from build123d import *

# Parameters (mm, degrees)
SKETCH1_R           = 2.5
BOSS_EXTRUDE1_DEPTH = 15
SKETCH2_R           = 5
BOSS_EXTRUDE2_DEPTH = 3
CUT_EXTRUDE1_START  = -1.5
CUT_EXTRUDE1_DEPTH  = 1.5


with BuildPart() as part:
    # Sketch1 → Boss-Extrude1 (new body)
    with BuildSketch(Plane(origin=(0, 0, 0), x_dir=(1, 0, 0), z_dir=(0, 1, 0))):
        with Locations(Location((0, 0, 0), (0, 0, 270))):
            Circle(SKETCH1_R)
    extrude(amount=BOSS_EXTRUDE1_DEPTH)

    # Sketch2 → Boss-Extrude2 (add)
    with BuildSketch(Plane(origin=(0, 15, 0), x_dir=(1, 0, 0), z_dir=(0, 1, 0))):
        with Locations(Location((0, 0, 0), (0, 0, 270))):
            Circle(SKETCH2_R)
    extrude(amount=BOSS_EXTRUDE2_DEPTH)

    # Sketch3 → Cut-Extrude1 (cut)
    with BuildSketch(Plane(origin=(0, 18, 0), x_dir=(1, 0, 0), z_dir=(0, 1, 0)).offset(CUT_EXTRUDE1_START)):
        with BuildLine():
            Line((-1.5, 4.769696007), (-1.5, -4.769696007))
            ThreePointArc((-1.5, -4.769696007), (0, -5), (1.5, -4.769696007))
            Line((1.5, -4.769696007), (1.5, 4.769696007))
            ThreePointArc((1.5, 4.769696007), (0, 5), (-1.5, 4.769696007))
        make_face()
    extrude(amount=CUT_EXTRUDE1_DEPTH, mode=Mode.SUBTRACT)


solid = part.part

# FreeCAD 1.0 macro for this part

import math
import FreeCAD as App
import Part
import Sketcher

V = App.Vector

doc = App.newDocument("Part")
body = doc.addObject("PartDesign::Body", "Body")

sketch1 = body.newObject("Sketcher::SketchObject", "Sketch")
sketch1.AttachmentSupport = (doc.getObject("XZ_Plane"), [""])
sketch1.MapMode = "FlatFace"
sketch1.addGeometry(Part.Circle(V(0, 0, 0), V(0, 0, 1), 2.5), False)
sketch1.addConstraint([
    Sketcher.Constraint("Coincident", 0, 3, -1, 1),
    Sketcher.Constraint("Diameter", 0, 5.0),
])
pad1 = body.newObject("PartDesign::Pad", "Pad")
pad1.Profile = sketch1
pad1.Length = 15
pad1.Reversed = True

sketch2 = body.newObject("Sketcher::SketchObject", "Sketch001")
sketch2.AttachmentSupport = (doc.getObject("XZ_Plane"), [""])
sketch2.MapMode = "FlatFace"
sketch2.AttachmentOffset = App.Placement(V(0, 0, -15), App.Rotation())
sketch2.addGeometry(Part.Circle(V(0, 0, 0), V(0, 0, 1), 5), False)
sketch2.addConstraint([
    Sketcher.Constraint("Coincident", 0, 3, -1, 1),
    Sketcher.Constraint("Diameter", 0, 10.0),
])
pad2 = body.newObject("PartDesign::Pad", "Pad001")
pad2.Profile = sketch2
pad2.Length = 3
pad2.Reversed = True

sketch3 = body.newObject("Sketcher::SketchObject", "Sketch002")
sketch3.AttachmentSupport = (doc.getObject("XZ_Plane"), [""])
sketch3.MapMode = "FlatFace"
sketch3.AttachmentOffset = App.Placement(V(0, 0, -16.5), App.Rotation())
sketch3.addGeometry([
    Part.LineSegment(V(-1.5, -4.769696, 0), V(-1.5, 4.769696, 0)),
    Part.ArcOfCircle(Part.Circle(V(0, 0, 0), V(0, 0, 1), 5), math.radians(72.542397), math.radians(107.457603)),
    Part.LineSegment(V(1.5, 4.769696, 0), V(1.5, -4.769696, 0)),
    Part.ArcOfCircle(Part.Circle(V(0, 0, 0), V(0, 0, 1), 5), math.radians(-107.457603), math.radians(-72.542397)),
], False)
sketch3.addConstraint([
    Sketcher.Constraint("Coincident", 0, 2, 1, 2),
    Sketcher.Constraint("Coincident", 1, 1, 2, 1),
    Sketcher.Constraint("Coincident", 2, 2, 3, 2),
    Sketcher.Constraint("Coincident", 3, 1, 0, 1),
    Sketcher.Constraint("Vertical", 0),
    Sketcher.Constraint("Vertical", 2),
    Sketcher.Constraint("Coincident", 1, 3, -1, 1),
    Sketcher.Constraint("Coincident", 3, 3, -1, 1),
    Sketcher.Constraint("Equal", 1, 3),
    Sketcher.Constraint("Horizontal", 0, 2, 1, 1),
    Sketcher.Constraint("Radius", 1, 5.0),
    Sketcher.Constraint("DistanceX", 0, 2, 1, 1, 3.0),
])
pocket1 = body.newObject("PartDesign::Pocket", "Pocket")
pocket1.Profile = sketch3
pocket1.Length = 1.5

doc.recompute()
